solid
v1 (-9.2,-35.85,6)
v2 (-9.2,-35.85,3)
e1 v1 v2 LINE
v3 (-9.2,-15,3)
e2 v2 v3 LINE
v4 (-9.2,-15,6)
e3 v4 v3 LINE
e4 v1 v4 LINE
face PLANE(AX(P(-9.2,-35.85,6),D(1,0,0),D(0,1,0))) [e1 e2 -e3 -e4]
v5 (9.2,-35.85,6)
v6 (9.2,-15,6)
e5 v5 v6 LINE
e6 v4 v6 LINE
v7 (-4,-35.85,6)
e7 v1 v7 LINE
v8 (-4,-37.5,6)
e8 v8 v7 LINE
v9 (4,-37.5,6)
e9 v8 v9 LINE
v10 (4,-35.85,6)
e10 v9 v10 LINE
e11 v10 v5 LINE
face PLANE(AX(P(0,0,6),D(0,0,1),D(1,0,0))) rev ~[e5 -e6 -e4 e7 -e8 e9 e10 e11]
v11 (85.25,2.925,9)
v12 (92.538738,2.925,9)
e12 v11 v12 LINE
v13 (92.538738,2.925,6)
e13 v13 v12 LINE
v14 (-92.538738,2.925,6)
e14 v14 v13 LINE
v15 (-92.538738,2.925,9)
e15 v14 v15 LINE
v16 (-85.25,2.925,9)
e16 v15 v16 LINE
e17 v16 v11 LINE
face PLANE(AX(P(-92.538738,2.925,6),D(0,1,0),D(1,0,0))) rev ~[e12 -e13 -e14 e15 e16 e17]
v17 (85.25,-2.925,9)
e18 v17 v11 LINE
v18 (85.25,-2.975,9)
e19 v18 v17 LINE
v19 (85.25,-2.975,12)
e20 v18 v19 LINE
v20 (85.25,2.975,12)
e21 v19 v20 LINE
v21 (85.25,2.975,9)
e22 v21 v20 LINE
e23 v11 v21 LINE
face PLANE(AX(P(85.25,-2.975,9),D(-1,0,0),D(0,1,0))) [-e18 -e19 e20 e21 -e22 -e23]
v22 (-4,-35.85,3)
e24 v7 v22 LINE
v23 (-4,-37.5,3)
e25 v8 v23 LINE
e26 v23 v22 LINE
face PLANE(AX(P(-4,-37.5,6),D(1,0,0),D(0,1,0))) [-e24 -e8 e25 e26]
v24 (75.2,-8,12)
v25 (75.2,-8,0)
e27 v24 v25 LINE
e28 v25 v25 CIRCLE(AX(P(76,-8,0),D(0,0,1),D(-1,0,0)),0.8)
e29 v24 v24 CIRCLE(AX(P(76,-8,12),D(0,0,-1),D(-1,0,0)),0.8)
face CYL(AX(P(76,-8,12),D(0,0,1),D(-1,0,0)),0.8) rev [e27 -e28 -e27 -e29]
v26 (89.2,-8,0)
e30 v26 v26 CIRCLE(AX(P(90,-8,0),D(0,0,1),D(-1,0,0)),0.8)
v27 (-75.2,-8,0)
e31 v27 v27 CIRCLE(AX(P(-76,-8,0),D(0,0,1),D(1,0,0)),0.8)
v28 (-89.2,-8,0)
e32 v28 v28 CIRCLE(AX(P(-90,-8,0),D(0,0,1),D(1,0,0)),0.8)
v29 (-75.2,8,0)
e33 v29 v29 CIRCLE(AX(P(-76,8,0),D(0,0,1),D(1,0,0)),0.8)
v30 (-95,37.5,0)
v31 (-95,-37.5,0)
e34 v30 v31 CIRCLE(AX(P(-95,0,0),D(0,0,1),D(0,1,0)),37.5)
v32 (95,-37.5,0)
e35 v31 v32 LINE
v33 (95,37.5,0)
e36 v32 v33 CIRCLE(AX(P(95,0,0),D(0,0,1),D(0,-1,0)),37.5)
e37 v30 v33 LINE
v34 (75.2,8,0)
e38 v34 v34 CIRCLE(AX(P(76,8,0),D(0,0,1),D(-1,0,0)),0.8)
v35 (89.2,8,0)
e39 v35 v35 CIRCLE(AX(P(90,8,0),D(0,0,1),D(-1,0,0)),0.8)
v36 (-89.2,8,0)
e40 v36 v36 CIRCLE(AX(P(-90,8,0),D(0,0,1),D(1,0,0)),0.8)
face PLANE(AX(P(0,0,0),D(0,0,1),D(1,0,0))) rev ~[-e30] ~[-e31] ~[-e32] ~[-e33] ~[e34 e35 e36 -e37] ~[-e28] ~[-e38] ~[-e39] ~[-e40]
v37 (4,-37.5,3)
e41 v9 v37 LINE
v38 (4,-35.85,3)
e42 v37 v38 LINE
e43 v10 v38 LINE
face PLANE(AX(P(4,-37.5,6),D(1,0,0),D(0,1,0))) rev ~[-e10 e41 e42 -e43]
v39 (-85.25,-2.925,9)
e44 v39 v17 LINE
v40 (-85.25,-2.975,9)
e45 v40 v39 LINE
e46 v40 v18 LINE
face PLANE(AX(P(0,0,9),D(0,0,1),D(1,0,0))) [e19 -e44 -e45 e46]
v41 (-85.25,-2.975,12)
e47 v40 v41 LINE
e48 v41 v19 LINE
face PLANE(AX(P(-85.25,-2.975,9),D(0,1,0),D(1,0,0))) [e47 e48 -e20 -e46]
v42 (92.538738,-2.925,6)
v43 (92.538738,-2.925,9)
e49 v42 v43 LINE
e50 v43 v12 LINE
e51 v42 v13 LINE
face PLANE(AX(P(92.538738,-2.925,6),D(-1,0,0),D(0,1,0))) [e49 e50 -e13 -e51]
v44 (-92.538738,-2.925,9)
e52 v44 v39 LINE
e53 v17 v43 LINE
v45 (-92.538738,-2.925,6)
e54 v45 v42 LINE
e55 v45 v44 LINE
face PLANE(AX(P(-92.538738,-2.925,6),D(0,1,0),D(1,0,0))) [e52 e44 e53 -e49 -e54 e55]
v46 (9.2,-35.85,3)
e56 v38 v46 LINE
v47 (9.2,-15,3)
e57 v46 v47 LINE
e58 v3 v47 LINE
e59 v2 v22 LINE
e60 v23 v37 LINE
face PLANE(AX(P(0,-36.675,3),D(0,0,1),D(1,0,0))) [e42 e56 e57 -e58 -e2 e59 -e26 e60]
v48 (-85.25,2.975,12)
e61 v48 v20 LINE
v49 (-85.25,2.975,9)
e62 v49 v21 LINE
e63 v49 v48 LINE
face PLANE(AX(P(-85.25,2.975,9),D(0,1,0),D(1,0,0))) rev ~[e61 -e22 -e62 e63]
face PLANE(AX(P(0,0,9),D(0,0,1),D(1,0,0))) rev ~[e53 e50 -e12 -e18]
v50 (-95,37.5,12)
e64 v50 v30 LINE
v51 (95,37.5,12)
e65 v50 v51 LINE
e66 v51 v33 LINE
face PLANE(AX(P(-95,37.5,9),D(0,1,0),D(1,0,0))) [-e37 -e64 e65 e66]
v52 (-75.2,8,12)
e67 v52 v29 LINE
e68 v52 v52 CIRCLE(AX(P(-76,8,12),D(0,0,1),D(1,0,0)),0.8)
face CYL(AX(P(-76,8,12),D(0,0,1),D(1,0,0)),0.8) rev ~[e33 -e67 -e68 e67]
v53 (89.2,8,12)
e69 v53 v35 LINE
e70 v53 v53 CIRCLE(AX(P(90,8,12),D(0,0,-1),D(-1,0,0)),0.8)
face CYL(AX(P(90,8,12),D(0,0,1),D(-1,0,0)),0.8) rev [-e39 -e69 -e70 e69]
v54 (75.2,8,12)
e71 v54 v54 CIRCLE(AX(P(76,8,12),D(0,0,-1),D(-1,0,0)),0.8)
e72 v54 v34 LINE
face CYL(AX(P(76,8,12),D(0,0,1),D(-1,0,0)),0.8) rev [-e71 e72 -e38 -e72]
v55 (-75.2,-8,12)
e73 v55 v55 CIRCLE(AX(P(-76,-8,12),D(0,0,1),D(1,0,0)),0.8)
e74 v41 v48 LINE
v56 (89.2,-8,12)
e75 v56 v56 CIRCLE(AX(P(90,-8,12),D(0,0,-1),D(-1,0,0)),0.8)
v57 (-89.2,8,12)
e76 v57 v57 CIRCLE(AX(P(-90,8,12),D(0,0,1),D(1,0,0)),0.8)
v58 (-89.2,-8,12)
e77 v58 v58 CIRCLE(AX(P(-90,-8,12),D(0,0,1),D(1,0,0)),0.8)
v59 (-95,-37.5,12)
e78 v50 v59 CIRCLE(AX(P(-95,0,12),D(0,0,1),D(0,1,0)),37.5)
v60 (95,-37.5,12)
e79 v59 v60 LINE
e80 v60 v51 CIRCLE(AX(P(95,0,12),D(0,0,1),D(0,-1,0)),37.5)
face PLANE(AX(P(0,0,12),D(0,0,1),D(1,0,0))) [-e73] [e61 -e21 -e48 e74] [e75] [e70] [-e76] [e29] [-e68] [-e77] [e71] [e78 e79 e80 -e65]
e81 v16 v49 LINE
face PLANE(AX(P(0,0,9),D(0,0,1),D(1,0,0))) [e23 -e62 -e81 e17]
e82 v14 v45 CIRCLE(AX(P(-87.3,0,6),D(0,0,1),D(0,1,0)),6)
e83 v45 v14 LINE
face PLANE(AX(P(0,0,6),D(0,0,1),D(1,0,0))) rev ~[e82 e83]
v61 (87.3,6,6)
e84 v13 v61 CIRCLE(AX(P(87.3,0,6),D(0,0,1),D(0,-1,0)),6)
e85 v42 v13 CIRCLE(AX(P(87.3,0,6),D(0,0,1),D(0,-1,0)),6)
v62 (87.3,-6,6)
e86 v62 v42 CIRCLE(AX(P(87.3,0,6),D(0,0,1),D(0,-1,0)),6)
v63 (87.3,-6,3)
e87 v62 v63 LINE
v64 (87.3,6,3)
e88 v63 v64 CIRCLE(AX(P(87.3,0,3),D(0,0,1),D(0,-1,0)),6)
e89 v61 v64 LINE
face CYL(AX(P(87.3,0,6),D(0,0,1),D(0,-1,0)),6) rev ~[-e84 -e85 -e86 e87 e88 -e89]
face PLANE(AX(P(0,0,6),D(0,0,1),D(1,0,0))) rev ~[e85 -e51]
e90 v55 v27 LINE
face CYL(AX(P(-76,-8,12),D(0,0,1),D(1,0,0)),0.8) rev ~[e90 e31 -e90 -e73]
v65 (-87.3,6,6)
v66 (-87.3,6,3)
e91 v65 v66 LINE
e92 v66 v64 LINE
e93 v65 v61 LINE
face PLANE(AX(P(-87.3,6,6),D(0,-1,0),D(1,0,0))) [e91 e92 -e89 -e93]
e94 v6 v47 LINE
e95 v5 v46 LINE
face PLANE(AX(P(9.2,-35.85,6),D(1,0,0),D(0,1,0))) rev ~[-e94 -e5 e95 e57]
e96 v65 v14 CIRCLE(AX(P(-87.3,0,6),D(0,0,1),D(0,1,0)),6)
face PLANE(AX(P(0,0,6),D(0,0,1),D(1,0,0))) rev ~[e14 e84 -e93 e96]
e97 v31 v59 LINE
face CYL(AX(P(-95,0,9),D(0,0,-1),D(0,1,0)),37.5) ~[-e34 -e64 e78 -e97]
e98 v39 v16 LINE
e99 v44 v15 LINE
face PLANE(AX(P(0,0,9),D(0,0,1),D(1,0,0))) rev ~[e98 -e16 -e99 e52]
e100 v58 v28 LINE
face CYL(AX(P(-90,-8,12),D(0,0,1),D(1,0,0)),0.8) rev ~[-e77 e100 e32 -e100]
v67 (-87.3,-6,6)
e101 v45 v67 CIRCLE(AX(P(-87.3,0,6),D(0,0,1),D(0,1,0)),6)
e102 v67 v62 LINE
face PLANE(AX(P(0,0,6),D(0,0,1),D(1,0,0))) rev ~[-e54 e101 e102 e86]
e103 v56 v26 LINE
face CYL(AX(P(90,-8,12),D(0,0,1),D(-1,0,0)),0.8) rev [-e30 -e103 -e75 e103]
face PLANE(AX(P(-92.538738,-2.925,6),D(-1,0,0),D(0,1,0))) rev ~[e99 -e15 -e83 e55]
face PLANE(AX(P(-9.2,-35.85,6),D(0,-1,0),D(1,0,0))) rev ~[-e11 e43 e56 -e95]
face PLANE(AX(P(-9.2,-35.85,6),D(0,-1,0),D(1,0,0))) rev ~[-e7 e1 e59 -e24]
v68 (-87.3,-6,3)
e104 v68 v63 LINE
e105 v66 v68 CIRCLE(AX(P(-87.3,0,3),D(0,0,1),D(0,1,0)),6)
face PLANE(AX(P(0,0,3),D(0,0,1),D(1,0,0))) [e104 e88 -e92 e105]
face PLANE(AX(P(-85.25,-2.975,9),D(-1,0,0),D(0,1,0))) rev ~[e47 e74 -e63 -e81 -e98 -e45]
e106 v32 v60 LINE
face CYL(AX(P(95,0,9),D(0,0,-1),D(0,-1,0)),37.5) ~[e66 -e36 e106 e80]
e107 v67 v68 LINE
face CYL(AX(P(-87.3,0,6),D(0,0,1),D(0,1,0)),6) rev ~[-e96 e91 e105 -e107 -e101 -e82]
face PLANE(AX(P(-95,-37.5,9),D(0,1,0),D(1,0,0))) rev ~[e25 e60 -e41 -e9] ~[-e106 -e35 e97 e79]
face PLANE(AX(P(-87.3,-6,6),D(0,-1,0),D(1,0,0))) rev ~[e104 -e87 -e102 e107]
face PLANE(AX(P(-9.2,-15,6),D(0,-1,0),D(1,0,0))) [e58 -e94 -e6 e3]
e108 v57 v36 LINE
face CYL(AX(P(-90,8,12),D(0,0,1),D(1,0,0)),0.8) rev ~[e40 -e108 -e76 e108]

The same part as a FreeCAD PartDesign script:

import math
import FreeCAD as App
import Part
import Sketcher
Q = App.Units.Quantity


def add_polygon(sketch, points):
    """Adds a closed chain of lines whose ends are joined by coincident constraints."""
    first, n = sketch.GeometryCount, len(points)
    for a, b in zip(points, points[1:] + points[:1]):
        sketch.addGeometry(Part.LineSegment(App.Vector(*a, 0), App.Vector(*b, 0)), False)
    for i in range(n):
        sketch.addConstraint(Sketcher.Constraint("Coincident", first + i, 2, first + (i + 1) % n, 1))

doc = App.newDocument("Part")
params = doc.addObject("Spreadsheet::Sheet", "Params")
for row, (alias, value) in enumerate([
    ("sketch1_radius", "37.5 mm"),
    ("sketch1_width", "190 mm"),
    ("pad1_length", "6 mm"),
    ("sketch2_radius", "6 mm"),
    ("sketch2_width", "174.6 mm"),
    ("pocket1_length", "3 mm"),
    ("sketch3_width", "18.4 mm"),
    ("sketch3_height", "20.85 mm"),
    ("pocket2_length", "3 mm"),
    ("sketch4_width", "8 mm"),
    ("sketch4_height", "1.65 mm"),
    ("pocket3_length", "3 mm"),
    ("sketch5_radius", "37.5 mm"),
    ("sketch5_width", "190 mm"),
    ("sketch5_height", "5.85 mm"),
    ("pad2_length", "3 mm"),
    ("sketch6_radius", "37.5 mm"),
    ("sketch6_width", "190 mm"),
    ("sketch6_width2", "170.5 mm"),
    ("sketch6_height", "5.95 mm"),
    ("pad3_length", "3 mm"),
    ("sketch7_diameter", "1.6 mm"),
], start=1):
    params.set(f"A{row}", alias)
    params.set(f"B{row}", "=" + value)
    params.setAlias(f"B{row}", alias)

body = doc.addObject("PartDesign::Body", "Body")

sketch1 = doc.addObject("Sketcher::SketchObject", "Sketch")
body.addObject(sketch1)
sketch1.AttachmentSupport = (doc.XY_Plane, [""])
sketch1.MapMode = "FlatFace"
sketch1.addGeometry([
    Part.ArcOfCircle(Part.Circle(App.Vector(-95, 0, 0), App.Vector(0, 0, 1), 38), math.radians(90), math.radians(270)),
    Part.LineSegment(App.Vector(-95, -38, 0), App.Vector(95, -38, 0)),
    Part.ArcOfCircle(Part.Circle(App.Vector(95, 0, 0), App.Vector(0, 0, 1), 38), math.radians(-90), math.radians(90)),
    Part.LineSegment(App.Vector(95, 38, 0), App.Vector(-95, 38, 0)),
], False)
sketch1.addConstraint([
    Sketcher.Constraint("Tangent", 0, 2, 1, 1),
    Sketcher.Constraint("Tangent", 1, 2, 2, 1),
    Sketcher.Constraint("Tangent", 2, 2, 3, 1),
    Sketcher.Constraint("Tangent", 3, 2, 0, 1),
    Sketcher.Constraint("Horizontal", 1),
    Sketcher.Constraint("Horizontal", 3),
    Sketcher.Constraint("Symmetric", 0, 3, 2, 3, -1, 1),
    Sketcher.Constraint("Radius", 0, Q("37.5 mm")),
    Sketcher.Constraint("DistanceX", 1, 1, 1, 2, Q("190 mm")),
])
sketch1.setExpression("Constraints[7]", "Params.sketch1_radius")
sketch1.setExpression("Constraints[8]", "Params.sketch1_width")
pad1 = doc.addObject("PartDesign::Pad", "Pad")
body.addObject(pad1)
pad1.Profile = sketch1
pad1.setExpression("Length", "Params.pad1_length")

sketch2 = doc.addObject("Sketcher::SketchObject", "Sketch001")
body.addObject(sketch2)
sketch2.AttachmentSupport = (doc.XY_Plane, [""])
sketch2.MapMode = "FlatFace"
sketch2.AttachmentOffset = App.Placement(App.Vector(0, 0, 6), App.Rotation())
sketch2.addGeometry([
    Part.ArcOfCircle(Part.Circle(App.Vector(-87, 0, 0), App.Vector(0, 0, 1), 6), math.radians(90), math.radians(270)),
    Part.LineSegment(App.Vector(-87, -6, 0), App.Vector(87, -6, 0)),
    Part.ArcOfCircle(Part.Circle(App.Vector(87, 0, 0), App.Vector(0, 0, 1), 6), math.radians(-90), math.radians(90)),
    Part.LineSegment(App.Vector(87, 6, 0), App.Vector(-87, 6, 0)),
], False)
sketch2.addConstraint([
    Sketcher.Constraint("Tangent", 0, 2, 1, 1),
    Sketcher.Constraint("Tangent", 1, 2, 2, 1),
    Sketcher.Constraint("Tangent", 2, 2, 3, 1),
    Sketcher.Constraint("Tangent", 3, 2, 0, 1),
    Sketcher.Constraint("Horizontal", 1),
    Sketcher.Constraint("Horizontal", 3),
    Sketcher.Constraint("Symmetric", 0, 3, 2, 3, -1, 1),
    Sketcher.Constraint("Radius", 0, Q("6 mm")),
    Sketcher.Constraint("DistanceX", 1, 1, 1, 2, Q("174.6 mm")),
])
sketch2.setExpression("Constraints[7]", "Params.sketch2_radius")
sketch2.setExpression("Constraints[8]", "Params.sketch2_width")
pocket1 = doc.addObject("PartDesign::Pocket", "Pocket")
body.addObject(pocket1)
pocket1.Profile = sketch2
pocket1.setExpression("Length", "Params.pocket1_length")

sketch3 = doc.addObject("Sketcher::SketchObject", "Sketch002")
body.addObject(sketch3)
sketch3.AttachmentSupport = (doc.XY_Plane, [""])
sketch3.MapMode = "FlatFace"
sketch3.AttachmentOffset = App.Placement(App.Vector(0, 0, 6), App.Rotation())
add_polygon(sketch3, [(-9, -15), (-9, -36), (9, -36), (9, -15)])
sketch3.addConstraint([
    Sketcher.Constraint("Vertical", 0),
    Sketcher.Constraint("Horizontal", 1),
    Sketcher.Constraint("Vertical", 2),
    Sketcher.Constraint("Horizontal", 3),
    Sketcher.Constraint("DistanceX", 1, 1, 1, 2, Q("18.4 mm")),
    Sketcher.Constraint("DistanceY", 2, 2, -1, 1, Q("15 mm")),
    Sketcher.Constraint("DistanceY", 0, 2, 0, 1, Q("20.85 mm")),
    Sketcher.Constraint("DistanceX", 0, 2, -1, 1, Q("9.2 mm")),
])
sketch3.setExpression("Constraints[8]", "Params.sketch3_width")
sketch3.setExpression("Constraints[10]", "Params.sketch3_height")
pocket2 = doc.addObject("PartDesign::Pocket", "Pocket001")
body.addObject(pocket2)
pocket2.Profile = sketch3
pocket2.setExpression("Length", "Params.pocket2_length")

sketch4 = doc.addObject("Sketcher::SketchObject", "Sketch003")
body.addObject(sketch4)
sketch4.AttachmentSupport = (doc.XY_Plane, [""])
sketch4.MapMode = "FlatFace"
sketch4.AttachmentOffset = App.Placement(App.Vector(0, 0, 6), App.Rotation())
add_polygon(sketch4, [(-4, -35.9), (-4, -37.5), (4, -37.5), (4, -35.9)])
sketch4.addConstraint([
    Sketcher.Constraint("Vertical", 0),
    Sketcher.Constraint("Horizontal", 1),
    Sketcher.Constraint("Vertical", 2),
    Sketcher.Constraint("Horizontal", 3),
    Sketcher.Constraint("DistanceX", 1, 1, 1, 2, Q("8 mm")),
    Sketcher.Constraint("DistanceX", 0, 2, -1, 1, Q("4 mm")),
    Sketcher.Constraint("DistanceY", 0, 2, 0, 1, Q("1.65 mm")),
    Sketcher.Constraint("DistanceY", 0, 2, -1, 1, Q("37.5 mm")),
])
sketch4.setExpression("Constraints[8]", "Params.sketch4_width")
sketch4.setExpression("Constraints[10]", "Params.sketch4_height")
pocket3 = doc.addObject("PartDesign::Pocket", "Pocket002")
body.addObject(pocket3)
pocket3.Profile = sketch4
pocket3.setExpression("Length", "Params.pocket3_length")

sketch5 = doc.addObject("Sketcher::SketchObject", "Sketch004")
body.addObject(sketch5)
sketch5.AttachmentSupport = (doc.XY_Plane, [""])
sketch5.MapMode = "FlatFace"
sketch5.AttachmentOffset = App.Placement(App.Vector(0, 0, 6), App.Rotation())
sketch5.addGeometry(Part.ArcOfCircle(Part.Circle(App.Vector(-95, 0, 0), App.Vector(0, 0, 1), 38), math.radians(90), math.radians(270)), False)
sketch5.addGeometry(Part.LineSegment(App.Vector(-95, -38, 0), App.Vector(95, -38, 0)), False)
sketch5.addGeometry(Part.ArcOfCircle(Part.Circle(App.Vector(95, 0, 0), App.Vector(0, 0, 1), 38), math.radians(-90), math.radians(90)), False)
sketch5.addGeometry(Part.LineSegment(App.Vector(95, 38, 0), App.Vector(-95, 38, 0)), False)
add_polygon(sketch5, [(93, -3), (-93, -3), (-93, 3), (93, 3)])
sketch5.addConstraint([
    Sketcher.Constraint("Tangent", 0, 2, 1, 1),
    Sketcher.Constraint("Tangent", 1, 2, 2, 1),
    Sketcher.Constraint("Tangent", 2, 2, 3, 1),
    Sketcher.Constraint("Tangent", 3, 2, 0, 1),
    Sketcher.Constraint("Horizontal", 1),
    Sketcher.Constraint("Horizontal", 3),
    Sketcher.Constraint("Horizontal", 4),
    Sketcher.Constraint("Vertical", 5),
    Sketcher.Constraint("Horizontal", 6),
    Sketcher.Constraint("Vertical", 7),
    Sketcher.Constraint("Symmetric", 0, 3, 2, 3, -1, 1),
    Sketcher.Constraint("Symmetric", 4, 2, 6, 2, -1, 1),
    Sketcher.Constraint("Radius", 0, Q("37.5 mm")),
    Sketcher.Constraint("DistanceX", 1, 1, 1, 2, Q("190 mm")),
    Sketcher.Constraint("DistanceY", 5, 1, 5, 2, Q("5.85 mm")),
    Sketcher.Constraint("DistanceX", 4, 2, 4, 1, Q("185.077476 mm")),
])
sketch5.setExpression("Constraints[16]", "Params.sketch5_radius")
sketch5.setExpression("Constraints[17]", "Params.sketch5_width")
sketch5.setExpression("Constraints[18]", "Params.sketch5_height")
pad2 = doc.addObject("PartDesign::Pad", "Pad001")
body.addObject(pad2)
pad2.Profile = sketch5
pad2.setExpression("Length", "Params.pad2_length")

sketch6 = doc.addObject("Sketcher::SketchObject", "Sketch005")
body.addObject(sketch6)
sketch6.AttachmentSupport = (doc.XY_Plane, [""])
sketch6.MapMode = "FlatFace"
sketch6.AttachmentOffset = App.Placement(App.Vector(0, 0, 9), App.Rotation())
sketch6.addGeometry(Part.ArcOfCircle(Part.Circle(App.Vector(-95, 0, 0), App.Vector(0, 0, 1), 38), math.radians(90), math.radians(270)), False)
sketch6.addGeometry(Part.LineSegment(App.Vector(-95, -38, 0), App.Vector(95, -38, 0)), False)
sketch6.addGeometry(Part.ArcOfCircle(Part.Circle(App.Vector(95, 0, 0), App.Vector(0, 0, 1), 38), math.radians(-90), math.radians(90)), False)
sketch6.addGeometry(Part.LineSegment(App.Vector(95, 38, 0), App.Vector(-95, 38, 0)), False)
add_polygon(sketch6, [(85, -3), (-85, -3), (-85, 3), (85, 3)])
sketch6.addConstraint([
    Sketcher.Constraint("Tangent", 0, 2, 1, 1),
    Sketcher.Constraint("Tangent", 1, 2, 2, 1),
    Sketcher.Constraint("Tangent", 2, 2, 3, 1),
    Sketcher.Constraint("Tangent", 3, 2, 0, 1),
    Sketcher.Constraint("Horizontal", 1),
    Sketcher.Constraint("Horizontal", 3),
    Sketcher.Constraint("Horizontal", 4),
    Sketcher.Constraint("Vertical", 5),
    Sketcher.Constraint("Horizontal", 6),
    Sketcher.Constraint("Vertical", 7),
    Sketcher.Constraint("Symmetric", 0, 3, 2, 3, -1, 1),
    Sketcher.Constraint("Symmetric", 4, 2, 6, 2, -1, 1),
    Sketcher.Constraint("Radius", 0, Q("37.5 mm")),
    Sketcher.Constraint("DistanceX", 1, 1, 1, 2, Q("190 mm")),
    Sketcher.Constraint("DistanceX", 4, 2, 4, 1, Q("170.5 mm")),
    Sketcher.Constraint("DistanceY", 5, 1, 5, 2, Q("5.95 mm")),
])
sketch6.setExpression("Constraints[16]", "Params.sketch6_radius")
sketch6.setExpression("Constraints[17]", "Params.sketch6_width")
sketch6.setExpression("Constraints[18]", "Params.sketch6_width2")
sketch6.setExpression("Constraints[19]", "Params.sketch6_height")
pad3 = doc.addObject("PartDesign::Pad", "Pad002")
body.addObject(pad3)
pad3.Profile = sketch6
pad3.setExpression("Length", "Params.pad3_length")

sketch7 = doc.addObject("Sketcher::SketchObject", "Sketch006")
body.addObject(sketch7)
sketch7.AttachmentSupport = (doc.XY_Plane, [""])
sketch7.MapMode = "FlatFace"
sketch7.AttachmentOffset = App.Placement(App.Vector(0, 0, 12), App.Rotation())
sketch7.addGeometry([
    Part.Circle(App.Vector(-90, -8, 0), App.Vector(0, 0, 1), 0.8),
    Part.Circle(App.Vector(-90, 8, 0), App.Vector(0, 0, 1), 0.8),
    Part.Circle(App.Vector(-76, 8, 0), App.Vector(0, 0, 1), 0.8),
    Part.Circle(App.Vector(-76, -8, 0), App.Vector(0, 0, 1), 0.8),
], False)
sketch7.addConstraint([
    Sketcher.Constraint("Equal", 0, 1),
    Sketcher.Constraint("Equal", 1, 2),
    Sketcher.Constraint("Equal", 2, 3),
    Sketcher.Constraint("Symmetric", 0, 3, 1, 3, -1),
    Sketcher.Constraint("Symmetric", 2, 3, 3, 3, -1),
    Sketcher.Constraint("Horizontal", 1, 3, 2, 3),
    Sketcher.Constraint("Diameter", 0, Q("1.6 mm")),
    Sketcher.Constraint("DistanceX", 0, 3, -1, 1, Q("90 mm")),
    Sketcher.Constraint("DistanceY", 0, 3, -1, 1, Q("8 mm")),
    Sketcher.Constraint("DistanceX", 2, 3, -1, 1, Q("76 mm")),
])
sketch7.setExpression("Constraints[6]", "Params.sketch7_diameter")
pocket4 = doc.addObject("PartDesign::Pocket", "Pocket003")
body.addObject(pocket4)
pocket4.Profile = sketch7
pocket4.Type = "ThroughAll"
doc.recompute()

mirrored = doc.addObject("PartDesign::Mirrored", "Mirrored")
body.addObject(mirrored)
mirrored.Originals = [pocket4]
mirrored.MirrorPlane = (doc.YZ_Plane, [""])
body.Tip = mirrored

doc.recompute()
